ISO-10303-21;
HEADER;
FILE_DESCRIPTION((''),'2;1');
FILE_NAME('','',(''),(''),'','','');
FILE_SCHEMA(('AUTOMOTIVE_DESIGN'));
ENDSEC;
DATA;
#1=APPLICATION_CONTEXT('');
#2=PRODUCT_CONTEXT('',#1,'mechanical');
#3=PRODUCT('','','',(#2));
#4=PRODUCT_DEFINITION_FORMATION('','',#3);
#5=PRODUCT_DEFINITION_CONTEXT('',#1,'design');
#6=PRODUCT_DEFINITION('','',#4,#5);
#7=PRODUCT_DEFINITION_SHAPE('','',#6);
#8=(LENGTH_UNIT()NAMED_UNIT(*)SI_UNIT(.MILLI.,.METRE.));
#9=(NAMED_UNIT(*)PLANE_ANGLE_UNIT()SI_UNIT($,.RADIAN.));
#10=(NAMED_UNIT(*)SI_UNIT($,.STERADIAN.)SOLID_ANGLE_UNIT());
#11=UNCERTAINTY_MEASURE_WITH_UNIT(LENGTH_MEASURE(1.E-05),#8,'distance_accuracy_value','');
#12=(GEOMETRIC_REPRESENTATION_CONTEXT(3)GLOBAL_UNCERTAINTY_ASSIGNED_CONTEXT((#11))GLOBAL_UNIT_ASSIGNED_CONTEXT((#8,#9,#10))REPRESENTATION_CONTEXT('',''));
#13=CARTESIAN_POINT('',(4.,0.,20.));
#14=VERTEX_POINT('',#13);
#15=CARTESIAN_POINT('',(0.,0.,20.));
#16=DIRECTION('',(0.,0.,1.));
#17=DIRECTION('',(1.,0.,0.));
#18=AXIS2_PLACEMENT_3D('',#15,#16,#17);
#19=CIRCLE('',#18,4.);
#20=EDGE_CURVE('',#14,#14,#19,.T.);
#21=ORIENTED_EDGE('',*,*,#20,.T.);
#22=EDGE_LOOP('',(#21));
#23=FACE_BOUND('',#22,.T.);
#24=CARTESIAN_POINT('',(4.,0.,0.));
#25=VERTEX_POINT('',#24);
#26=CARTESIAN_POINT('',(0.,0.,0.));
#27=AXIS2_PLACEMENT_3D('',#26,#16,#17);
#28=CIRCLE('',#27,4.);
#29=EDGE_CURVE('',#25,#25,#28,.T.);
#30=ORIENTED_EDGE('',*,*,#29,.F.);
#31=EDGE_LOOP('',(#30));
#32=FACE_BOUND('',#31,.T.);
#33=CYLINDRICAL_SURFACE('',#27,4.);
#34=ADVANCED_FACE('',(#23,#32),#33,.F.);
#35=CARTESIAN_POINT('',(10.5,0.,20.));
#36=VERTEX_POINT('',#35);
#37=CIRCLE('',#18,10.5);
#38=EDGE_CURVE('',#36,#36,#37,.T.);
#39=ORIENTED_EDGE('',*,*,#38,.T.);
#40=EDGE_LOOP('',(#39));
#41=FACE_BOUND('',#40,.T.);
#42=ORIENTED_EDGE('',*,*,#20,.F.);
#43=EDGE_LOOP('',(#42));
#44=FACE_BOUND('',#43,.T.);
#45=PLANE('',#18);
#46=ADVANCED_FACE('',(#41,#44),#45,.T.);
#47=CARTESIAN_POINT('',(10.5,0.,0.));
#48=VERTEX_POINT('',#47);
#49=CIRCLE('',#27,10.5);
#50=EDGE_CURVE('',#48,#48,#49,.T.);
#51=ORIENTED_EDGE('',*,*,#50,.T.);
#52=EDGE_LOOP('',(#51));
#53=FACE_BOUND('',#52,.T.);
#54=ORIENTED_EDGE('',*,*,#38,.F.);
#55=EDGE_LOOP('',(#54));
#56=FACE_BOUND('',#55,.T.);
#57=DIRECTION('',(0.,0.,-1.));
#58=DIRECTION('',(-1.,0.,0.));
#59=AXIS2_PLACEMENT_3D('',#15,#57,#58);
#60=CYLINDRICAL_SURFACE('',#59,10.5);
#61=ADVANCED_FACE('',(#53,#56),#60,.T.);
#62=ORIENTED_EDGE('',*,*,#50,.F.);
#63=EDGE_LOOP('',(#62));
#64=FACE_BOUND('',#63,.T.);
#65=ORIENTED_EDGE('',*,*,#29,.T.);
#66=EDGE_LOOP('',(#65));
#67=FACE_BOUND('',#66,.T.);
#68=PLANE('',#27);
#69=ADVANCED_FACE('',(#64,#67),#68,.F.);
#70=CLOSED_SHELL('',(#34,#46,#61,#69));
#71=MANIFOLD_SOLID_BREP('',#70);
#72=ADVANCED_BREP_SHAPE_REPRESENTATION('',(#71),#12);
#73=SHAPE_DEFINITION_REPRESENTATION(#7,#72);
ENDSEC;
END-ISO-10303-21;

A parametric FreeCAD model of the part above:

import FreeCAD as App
import Part
import Sketcher

V = App.Vector

doc = App.newDocument("Part")
body = doc.addObject("PartDesign::Body", "Body")

sketch1 = body.newObject("Sketcher::SketchObject", "Sketch")
sketch1.AttachmentSupport = (doc.getObject("XY_Plane"), [""])
sketch1.MapMode = "FlatFace"
sketch1.addGeometry(Part.Circle(V(0, 0, 0), V(0, 0, 1), 10.5), False)
sketch1.addConstraint([
    Sketcher.Constraint("Coincident", 0, 3, -1, 1),
    Sketcher.Constraint("Diameter", 0, 21.0),
])
pad1 = body.newObject("PartDesign::Pad", "Pad")
pad1.Profile = sketch1
pad1.Length = 20

sketch2 = body.newObject("Sketcher::SketchObject", "Sketch001")
sketch2.AttachmentSupport = (doc.getObject("XY_Plane"), [""])
sketch2.MapMode = "FlatFace"
sketch2.AttachmentOffset = App.Placement(V(0, 0, 20), App.Rotation())
sketch2.addGeometry(Part.Circle(V(0, 0, 0), V(0, 0, 1), 4), False)
sketch2.addConstraint([
    Sketcher.Constraint("Coincident", 0, 3, -1, 1),
    Sketcher.Constraint("Diameter", 0, 8.0),
])
pocket1 = body.newObject("PartDesign::Pocket", "Pocket")
pocket1.Profile = sketch2
pocket1.Length = 20

doc.recompute()
